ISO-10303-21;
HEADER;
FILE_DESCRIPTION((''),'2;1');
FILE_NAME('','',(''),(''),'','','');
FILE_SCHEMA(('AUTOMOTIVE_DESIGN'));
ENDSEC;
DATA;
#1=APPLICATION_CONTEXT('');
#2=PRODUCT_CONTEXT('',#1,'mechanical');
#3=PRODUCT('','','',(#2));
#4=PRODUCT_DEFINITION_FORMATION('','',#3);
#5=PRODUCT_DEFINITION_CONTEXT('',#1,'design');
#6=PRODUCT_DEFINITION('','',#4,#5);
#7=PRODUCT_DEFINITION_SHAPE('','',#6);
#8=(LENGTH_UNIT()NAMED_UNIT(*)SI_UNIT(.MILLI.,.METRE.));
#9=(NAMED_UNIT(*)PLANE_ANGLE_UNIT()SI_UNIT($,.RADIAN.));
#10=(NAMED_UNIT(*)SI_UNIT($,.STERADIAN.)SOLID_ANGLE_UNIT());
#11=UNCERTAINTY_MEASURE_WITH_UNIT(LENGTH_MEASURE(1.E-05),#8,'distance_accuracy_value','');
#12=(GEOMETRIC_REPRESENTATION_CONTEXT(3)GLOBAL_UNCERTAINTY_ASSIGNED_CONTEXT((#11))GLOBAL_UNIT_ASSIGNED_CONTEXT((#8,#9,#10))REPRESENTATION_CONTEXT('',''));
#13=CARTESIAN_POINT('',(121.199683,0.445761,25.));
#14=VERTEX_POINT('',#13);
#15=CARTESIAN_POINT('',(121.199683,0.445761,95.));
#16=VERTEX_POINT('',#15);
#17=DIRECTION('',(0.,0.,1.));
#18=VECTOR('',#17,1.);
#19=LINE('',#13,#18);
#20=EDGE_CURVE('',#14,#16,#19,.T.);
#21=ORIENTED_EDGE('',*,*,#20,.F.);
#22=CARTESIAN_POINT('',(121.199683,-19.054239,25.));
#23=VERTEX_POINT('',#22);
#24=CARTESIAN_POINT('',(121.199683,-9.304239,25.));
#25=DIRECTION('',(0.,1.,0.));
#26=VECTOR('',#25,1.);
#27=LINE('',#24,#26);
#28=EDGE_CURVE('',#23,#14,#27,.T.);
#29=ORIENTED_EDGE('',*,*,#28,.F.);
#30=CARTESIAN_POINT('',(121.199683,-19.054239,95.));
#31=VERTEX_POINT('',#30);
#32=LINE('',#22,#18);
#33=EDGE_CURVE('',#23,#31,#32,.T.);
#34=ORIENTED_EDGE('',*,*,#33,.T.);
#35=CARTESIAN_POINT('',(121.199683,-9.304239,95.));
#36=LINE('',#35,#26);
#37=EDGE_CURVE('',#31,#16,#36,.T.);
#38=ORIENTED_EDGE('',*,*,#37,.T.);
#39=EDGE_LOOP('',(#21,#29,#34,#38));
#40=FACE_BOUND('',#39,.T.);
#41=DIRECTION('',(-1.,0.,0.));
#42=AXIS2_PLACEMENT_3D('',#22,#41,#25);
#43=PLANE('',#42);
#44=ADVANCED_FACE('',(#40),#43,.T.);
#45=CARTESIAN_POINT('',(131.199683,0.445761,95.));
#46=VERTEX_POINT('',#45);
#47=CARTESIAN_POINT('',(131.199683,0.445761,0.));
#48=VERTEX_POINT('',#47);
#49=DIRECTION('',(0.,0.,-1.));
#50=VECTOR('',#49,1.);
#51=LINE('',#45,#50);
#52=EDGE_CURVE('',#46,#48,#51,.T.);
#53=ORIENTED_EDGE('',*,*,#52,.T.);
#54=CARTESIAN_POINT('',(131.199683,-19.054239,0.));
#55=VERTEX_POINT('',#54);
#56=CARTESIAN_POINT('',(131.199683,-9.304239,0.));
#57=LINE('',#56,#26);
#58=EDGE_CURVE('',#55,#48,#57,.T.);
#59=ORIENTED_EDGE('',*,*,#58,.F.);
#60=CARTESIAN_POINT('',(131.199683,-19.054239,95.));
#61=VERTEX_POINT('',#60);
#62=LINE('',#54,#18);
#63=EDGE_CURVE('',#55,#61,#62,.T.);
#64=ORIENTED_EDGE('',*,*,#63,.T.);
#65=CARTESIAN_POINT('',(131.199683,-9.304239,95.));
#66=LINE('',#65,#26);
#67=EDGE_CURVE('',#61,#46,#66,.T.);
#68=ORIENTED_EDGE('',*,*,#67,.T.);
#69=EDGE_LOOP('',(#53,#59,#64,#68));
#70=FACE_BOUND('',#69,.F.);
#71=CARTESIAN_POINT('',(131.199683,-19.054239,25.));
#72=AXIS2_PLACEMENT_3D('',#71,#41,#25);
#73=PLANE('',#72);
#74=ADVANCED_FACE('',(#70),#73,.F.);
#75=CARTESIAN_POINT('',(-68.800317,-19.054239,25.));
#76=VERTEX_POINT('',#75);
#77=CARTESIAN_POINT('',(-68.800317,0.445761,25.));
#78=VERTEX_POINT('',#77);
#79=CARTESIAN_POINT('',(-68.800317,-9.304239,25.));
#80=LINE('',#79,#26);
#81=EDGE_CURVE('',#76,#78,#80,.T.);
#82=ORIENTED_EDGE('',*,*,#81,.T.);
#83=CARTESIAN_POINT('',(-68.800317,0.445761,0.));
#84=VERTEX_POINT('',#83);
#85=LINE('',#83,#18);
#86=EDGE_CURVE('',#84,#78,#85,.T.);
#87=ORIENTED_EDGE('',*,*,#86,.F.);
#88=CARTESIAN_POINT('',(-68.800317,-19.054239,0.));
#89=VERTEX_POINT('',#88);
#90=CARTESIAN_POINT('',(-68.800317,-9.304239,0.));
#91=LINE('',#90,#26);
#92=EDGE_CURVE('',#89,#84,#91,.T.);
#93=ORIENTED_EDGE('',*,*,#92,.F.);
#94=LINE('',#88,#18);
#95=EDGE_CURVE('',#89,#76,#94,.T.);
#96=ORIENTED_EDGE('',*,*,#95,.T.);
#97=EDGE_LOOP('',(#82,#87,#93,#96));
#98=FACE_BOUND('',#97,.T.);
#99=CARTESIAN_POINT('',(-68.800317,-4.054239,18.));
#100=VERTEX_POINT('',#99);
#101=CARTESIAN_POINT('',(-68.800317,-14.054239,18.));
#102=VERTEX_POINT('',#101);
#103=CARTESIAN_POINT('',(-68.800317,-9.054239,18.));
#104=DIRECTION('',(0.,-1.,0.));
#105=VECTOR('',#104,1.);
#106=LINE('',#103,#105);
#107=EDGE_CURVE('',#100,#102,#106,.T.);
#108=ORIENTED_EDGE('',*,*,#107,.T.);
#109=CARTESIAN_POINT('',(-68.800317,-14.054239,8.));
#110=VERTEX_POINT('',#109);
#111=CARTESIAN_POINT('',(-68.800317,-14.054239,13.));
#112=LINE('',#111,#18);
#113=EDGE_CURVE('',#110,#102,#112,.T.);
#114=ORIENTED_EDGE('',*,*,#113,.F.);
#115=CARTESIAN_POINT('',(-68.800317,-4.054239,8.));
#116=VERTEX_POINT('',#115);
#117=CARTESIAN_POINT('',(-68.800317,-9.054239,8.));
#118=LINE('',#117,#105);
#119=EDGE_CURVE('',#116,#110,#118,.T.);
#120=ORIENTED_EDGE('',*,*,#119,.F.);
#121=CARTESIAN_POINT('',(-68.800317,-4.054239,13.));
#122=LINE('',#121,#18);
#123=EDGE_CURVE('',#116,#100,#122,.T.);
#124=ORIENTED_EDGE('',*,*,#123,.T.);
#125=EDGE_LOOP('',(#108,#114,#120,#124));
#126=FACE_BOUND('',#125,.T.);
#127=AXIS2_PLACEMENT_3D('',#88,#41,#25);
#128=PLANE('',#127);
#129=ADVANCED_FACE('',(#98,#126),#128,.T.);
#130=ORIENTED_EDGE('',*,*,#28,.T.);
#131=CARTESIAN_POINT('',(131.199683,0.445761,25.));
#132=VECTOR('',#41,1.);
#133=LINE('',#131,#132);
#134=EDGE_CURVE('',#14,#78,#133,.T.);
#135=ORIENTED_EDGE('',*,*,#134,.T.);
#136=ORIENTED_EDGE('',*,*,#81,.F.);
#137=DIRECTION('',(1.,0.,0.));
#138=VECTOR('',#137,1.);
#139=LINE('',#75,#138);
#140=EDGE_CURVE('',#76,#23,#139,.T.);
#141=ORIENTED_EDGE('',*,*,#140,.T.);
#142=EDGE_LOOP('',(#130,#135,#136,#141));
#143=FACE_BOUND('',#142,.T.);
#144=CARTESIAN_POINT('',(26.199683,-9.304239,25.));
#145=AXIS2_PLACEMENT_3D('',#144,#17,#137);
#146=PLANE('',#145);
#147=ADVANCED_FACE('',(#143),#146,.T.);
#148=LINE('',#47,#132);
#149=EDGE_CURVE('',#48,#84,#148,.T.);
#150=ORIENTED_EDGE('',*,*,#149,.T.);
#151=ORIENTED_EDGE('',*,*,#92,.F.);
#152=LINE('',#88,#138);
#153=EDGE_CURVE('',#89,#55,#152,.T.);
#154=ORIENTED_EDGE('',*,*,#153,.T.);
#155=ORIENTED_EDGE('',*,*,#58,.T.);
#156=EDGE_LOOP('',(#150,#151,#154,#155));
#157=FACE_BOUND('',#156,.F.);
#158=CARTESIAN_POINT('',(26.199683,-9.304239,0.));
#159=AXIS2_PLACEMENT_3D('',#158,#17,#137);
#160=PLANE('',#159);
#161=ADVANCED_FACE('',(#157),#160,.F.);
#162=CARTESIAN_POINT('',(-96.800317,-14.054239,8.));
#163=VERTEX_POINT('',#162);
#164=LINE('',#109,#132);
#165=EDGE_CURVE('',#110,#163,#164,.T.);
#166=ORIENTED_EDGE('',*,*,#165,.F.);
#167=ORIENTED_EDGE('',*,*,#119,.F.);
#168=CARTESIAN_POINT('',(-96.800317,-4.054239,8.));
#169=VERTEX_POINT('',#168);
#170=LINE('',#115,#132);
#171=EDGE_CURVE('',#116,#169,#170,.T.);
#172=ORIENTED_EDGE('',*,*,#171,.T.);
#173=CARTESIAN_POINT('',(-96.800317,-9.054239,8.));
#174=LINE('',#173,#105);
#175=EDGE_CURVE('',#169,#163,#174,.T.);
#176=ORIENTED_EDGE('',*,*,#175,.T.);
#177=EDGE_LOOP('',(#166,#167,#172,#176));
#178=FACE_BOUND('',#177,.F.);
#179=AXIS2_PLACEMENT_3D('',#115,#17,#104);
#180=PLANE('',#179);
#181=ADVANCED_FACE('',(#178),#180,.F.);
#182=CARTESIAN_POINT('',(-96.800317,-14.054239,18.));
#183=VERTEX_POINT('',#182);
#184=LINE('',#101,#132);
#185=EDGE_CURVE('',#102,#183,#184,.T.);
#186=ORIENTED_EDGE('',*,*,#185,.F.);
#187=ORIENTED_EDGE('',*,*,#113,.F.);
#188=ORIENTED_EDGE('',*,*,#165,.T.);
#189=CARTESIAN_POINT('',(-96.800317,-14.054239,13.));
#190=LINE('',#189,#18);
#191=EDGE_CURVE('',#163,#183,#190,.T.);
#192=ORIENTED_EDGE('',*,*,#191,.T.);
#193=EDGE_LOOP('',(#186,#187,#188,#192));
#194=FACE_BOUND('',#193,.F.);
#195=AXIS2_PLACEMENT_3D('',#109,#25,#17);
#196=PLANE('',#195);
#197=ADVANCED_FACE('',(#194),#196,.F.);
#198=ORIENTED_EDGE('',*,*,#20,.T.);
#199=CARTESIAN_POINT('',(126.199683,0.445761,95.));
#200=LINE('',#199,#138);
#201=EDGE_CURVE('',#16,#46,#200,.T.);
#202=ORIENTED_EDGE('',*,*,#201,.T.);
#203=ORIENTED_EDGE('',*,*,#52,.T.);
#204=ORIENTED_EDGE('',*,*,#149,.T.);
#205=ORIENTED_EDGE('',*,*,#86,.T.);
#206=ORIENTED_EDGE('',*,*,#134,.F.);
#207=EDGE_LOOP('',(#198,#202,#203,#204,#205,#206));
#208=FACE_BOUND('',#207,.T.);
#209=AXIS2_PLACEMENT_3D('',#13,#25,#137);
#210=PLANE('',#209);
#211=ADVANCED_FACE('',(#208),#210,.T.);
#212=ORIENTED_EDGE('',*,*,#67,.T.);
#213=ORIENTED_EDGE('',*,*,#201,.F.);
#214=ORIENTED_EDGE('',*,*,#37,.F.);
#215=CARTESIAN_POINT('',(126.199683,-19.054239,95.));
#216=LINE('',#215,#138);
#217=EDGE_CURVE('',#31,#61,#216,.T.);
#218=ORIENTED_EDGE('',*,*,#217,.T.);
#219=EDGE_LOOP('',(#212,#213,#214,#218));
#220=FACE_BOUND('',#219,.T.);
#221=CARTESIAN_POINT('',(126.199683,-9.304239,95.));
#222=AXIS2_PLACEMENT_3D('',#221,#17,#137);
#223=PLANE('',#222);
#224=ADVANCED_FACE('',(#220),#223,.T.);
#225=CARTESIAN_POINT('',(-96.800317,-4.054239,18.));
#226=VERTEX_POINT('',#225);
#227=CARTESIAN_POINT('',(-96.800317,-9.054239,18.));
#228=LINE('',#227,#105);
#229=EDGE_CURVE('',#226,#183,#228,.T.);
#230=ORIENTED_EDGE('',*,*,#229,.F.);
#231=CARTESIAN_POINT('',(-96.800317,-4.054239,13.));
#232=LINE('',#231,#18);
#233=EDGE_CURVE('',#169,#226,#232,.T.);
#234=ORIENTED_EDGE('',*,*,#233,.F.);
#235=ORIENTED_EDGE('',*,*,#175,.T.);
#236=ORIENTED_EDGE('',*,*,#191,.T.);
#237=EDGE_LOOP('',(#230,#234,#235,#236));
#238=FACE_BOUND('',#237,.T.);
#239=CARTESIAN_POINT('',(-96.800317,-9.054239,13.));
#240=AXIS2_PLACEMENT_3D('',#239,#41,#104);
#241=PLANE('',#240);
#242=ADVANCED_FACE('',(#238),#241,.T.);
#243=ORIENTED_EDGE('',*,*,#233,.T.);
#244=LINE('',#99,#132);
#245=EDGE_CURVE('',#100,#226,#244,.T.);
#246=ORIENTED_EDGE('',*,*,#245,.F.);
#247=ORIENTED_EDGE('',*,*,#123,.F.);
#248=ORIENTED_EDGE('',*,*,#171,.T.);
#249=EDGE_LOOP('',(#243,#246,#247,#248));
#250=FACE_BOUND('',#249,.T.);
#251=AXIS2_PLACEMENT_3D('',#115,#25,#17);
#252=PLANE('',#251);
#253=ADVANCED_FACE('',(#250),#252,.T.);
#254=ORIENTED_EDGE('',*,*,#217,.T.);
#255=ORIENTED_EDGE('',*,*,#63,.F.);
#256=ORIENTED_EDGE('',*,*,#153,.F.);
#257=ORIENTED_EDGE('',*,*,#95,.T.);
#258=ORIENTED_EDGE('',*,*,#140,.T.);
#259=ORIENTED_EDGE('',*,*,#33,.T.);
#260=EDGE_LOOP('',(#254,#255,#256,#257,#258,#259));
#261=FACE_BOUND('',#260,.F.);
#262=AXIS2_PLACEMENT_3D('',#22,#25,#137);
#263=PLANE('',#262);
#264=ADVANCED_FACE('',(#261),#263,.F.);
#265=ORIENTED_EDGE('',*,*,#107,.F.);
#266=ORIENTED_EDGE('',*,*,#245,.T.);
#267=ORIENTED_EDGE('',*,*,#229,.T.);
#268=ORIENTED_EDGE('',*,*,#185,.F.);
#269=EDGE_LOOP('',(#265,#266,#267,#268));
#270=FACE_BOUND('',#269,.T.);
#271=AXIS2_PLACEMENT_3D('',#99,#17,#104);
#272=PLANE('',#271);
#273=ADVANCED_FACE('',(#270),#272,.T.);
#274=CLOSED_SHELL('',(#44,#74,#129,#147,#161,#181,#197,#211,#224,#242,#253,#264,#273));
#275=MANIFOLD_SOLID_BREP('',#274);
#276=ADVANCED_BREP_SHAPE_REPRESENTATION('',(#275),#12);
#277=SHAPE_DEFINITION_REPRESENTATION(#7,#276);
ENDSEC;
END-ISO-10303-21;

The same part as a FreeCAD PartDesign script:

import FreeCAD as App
import Part
import Sketcher
from FreeCAD import Vector
Q = App.Units.Quantity


def add_polygon(sketch, points):
    """Adds a closed chain of lines whose ends are joined by coincident constraints."""
    first, n = sketch.GeometryCount, len(points)
    for a, b in zip(points, points[1:] + points[:1]):
        sketch.addGeometry(Part.LineSegment(App.Vector(*a, 0), App.Vector(*b, 0)), False)
    for i in range(n):
        sketch.addConstraint(Sketcher.Constraint("Coincident", first + i, 2, first + (i + 1) % n, 1))

doc = App.newDocument("Part")
body = doc.addObject("PartDesign::Body", "Body")

# Sketch on XY plane
sketch1 = doc.addObject("Sketcher::SketchObject", "Sketch")
body.addObject(sketch1)
sketch1.AttachmentSupport = (doc.XY_Plane, [""])
sketch1.MapMode = "FlatFace"
add_polygon(sketch1, [(-69, 0), (-69, -19), (131, -19), (131, 0)])  # lines 0-3
sketch1.addConstraint(Sketcher.Constraint("Vertical", 0))
sketch1.addConstraint(Sketcher.Constraint("Horizontal", 1))
sketch1.addConstraint(Sketcher.Constraint("Vertical", 2))
sketch1.addConstraint(Sketcher.Constraint("Horizontal", 3))
sketch1.addConstraint(Sketcher.Constraint("DistanceX", 1, 1, 1, 2, Q("200 mm")))
sketch1.addConstraint(Sketcher.Constraint("DistanceY", 0, 2, 0, 1, Q("19.5 mm")))
sketch1.addConstraint(Sketcher.Constraint("DistanceY", 0, 2, -1, 1, Q("19.054239 mm")))
sketch1.addConstraint(Sketcher.Constraint("DistanceX", 0, 2, -1, 1, Q("68.800317 mm")))
pad1 = doc.addObject("PartDesign::Pad", "Pad")
body.addObject(pad1)
pad1.Profile = sketch1
pad1.Length = 25

# Sketch on XY plane
sketch2 = doc.addObject("Sketcher::SketchObject", "Sketch001")
body.addObject(sketch2)
sketch2.AttachmentSupport = (doc.XY_Plane, [""])
sketch2.MapMode = "FlatFace"
sketch2.AttachmentOffset = App.Placement(Vector(0, 0, 25), App.Rotation())
add_polygon(sketch2, [(121, 0), (121, -19), (131, -19), (131, 0)])  # lines 0-3
sketch2.addConstraint(Sketcher.Constraint("Vertical", 0))
sketch2.addConstraint(Sketcher.Constraint("Horizontal", 1))
sketch2.addConstraint(Sketcher.Constraint("Vertical", 2))
sketch2.addConstraint(Sketcher.Constraint("Horizontal", 3))
sketch2.addConstraint(Sketcher.Constraint("DistanceX", 1, 1, 1, 2, Q("10 mm")))
sketch2.addConstraint(Sketcher.Constraint("DistanceY", 0, 2, 0, 1, Q("19.5 mm")))
sketch2.addConstraint(Sketcher.Constraint("DistanceY", 0, 2, -1, 1, Q("19.054239 mm")))
sketch2.addConstraint(Sketcher.Constraint("DistanceX", -1, 1, 0, 2, Q("121.199683 mm")))
pad2 = doc.addObject("PartDesign::Pad", "Pad001")
body.addObject(pad2)
pad2.Profile = sketch2
pad2.Length = 70

# Sketch on YZ plane
sketch3 = doc.addObject("Sketcher::SketchObject", "Sketch002")
body.addObject(sketch3)
sketch3.AttachmentSupport = (doc.YZ_Plane, [""])
sketch3.MapMode = "FlatFace"
sketch3.AttachmentOffset = App.Placement(Vector(0, 0, -68.800317), App.Rotation())
add_polygon(sketch3, [(-4, 18), (-4, 8), (-14, 8), (-14, 18)])  # lines 0-3
sketch3.addConstraint(Sketcher.Constraint("Vertical", 0))
sketch3.addConstraint(Sketcher.Constraint("Horizontal", 1))
sketch3.addConstraint(Sketcher.Constraint("Vertical", 2))
sketch3.addConstraint(Sketcher.Constraint("Horizontal", 3))
sketch3.addConstraint(Sketcher.Constraint("Equal", 3, 0))
sketch3.addConstraint(Sketcher.Constraint("DistanceX", 1, 2, 1, 1, Q("10 mm")))
sketch3.addConstraint(Sketcher.Constraint("DistanceY", -1, 1, 0, 2, Q("8 mm")))
sketch3.addConstraint(Sketcher.Constraint("DistanceX", 0, 2, -1, 1, Q("4.054239 mm")))
pad3 = doc.addObject("PartDesign::Pad", "Pad002")
body.addObject(pad3)
pad3.Profile = sketch3
pad3.Length = 28
pad3.Reversed = True

doc.recompute()
